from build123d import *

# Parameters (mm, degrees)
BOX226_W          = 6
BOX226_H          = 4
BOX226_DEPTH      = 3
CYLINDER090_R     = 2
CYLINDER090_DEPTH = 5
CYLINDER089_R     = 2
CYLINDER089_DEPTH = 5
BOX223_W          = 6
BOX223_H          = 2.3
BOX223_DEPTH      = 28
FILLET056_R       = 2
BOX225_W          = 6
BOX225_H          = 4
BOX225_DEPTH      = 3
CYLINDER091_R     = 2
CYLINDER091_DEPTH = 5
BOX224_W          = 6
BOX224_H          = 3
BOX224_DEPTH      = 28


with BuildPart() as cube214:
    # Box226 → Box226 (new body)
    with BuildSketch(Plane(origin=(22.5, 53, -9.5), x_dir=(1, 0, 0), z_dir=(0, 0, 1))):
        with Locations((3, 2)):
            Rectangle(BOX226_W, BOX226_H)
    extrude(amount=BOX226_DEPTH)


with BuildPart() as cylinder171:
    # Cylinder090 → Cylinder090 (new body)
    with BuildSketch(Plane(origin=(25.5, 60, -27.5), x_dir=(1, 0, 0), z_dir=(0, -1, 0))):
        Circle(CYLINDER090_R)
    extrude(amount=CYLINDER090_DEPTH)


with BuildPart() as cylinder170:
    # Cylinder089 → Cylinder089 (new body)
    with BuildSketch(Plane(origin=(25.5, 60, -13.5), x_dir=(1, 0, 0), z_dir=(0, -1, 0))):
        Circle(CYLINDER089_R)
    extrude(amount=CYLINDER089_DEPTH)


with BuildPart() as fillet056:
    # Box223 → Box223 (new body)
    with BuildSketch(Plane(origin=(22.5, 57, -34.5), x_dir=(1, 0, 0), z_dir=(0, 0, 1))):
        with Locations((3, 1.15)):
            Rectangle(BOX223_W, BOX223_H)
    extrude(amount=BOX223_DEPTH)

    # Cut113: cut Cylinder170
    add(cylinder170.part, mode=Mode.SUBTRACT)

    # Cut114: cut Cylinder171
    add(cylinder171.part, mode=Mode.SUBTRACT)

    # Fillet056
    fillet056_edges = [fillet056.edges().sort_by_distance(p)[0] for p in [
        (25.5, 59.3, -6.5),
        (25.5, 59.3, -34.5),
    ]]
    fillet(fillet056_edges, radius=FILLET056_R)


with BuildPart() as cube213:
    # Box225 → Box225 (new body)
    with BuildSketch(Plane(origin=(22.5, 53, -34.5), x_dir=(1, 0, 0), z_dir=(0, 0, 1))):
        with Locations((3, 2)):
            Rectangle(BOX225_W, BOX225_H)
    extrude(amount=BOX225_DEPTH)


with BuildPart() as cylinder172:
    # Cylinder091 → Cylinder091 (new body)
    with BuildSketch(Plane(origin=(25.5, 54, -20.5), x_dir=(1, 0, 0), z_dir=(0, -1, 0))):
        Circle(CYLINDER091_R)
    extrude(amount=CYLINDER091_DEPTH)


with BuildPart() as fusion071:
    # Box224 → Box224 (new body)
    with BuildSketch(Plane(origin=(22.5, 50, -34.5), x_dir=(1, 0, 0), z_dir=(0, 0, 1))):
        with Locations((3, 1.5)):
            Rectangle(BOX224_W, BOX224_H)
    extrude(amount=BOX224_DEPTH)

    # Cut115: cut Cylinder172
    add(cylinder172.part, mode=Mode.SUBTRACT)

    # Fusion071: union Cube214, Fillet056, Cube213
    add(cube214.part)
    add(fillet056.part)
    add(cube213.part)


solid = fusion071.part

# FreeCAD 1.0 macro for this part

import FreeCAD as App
import Part
import Sketcher
from FreeCAD import Vector


def edges_at(feature, points):
    """Names of the edges that pass closest to the given points."""
    edges = feature.Shape.Edges
    near = lambda p: min(range(len(edges)), key=lambda i: edges[i].distToShape(Part.Vertex(*p))[0])
    return sorted({f"Edge{near(p) + 1}" for p in points})

doc = App.newDocument("Part")
body = doc.addObject("PartDesign::Body", "Body")

# Sketch on XY plane
sketch1 = body.newObject("Sketcher::SketchObject", "Sketch")
sketch1.AttachmentSupport = (doc.getObject("XY_Plane"), [""])
sketch1.MapMode = "FlatFace"
sketch1.AttachmentOffset = App.Placement(Vector(0, 0, -9.5), App.Rotation())
sketch1.addGeometry([
    Part.LineSegment(Vector(22.5, 57, 0), Vector(22.5, 53, 0)),
    Part.LineSegment(Vector(22.5, 53, 0), Vector(28.5, 53, 0)),
    Part.LineSegment(Vector(28.5, 53, 0), Vector(28.5, 57, 0)),
    Part.LineSegment(Vector(28.5, 57, 0), Vector(22.5, 57, 0)),
], False)
sketch1.addConstraint([
    Sketcher.Constraint("Coincident", 0, 2, 1, 1),
    Sketcher.Constraint("Coincident", 1, 2, 2, 1),
    Sketcher.Constraint("Coincident", 2, 2, 3, 1),
    Sketcher.Constraint("Coincident", 3, 2, 0, 1),
    Sketcher.Constraint("Vertical", 0),
    Sketcher.Constraint("Horizontal", 1),
    Sketcher.Constraint("Vertical", 2),
    Sketcher.Constraint("Horizontal", 3),
    Sketcher.Constraint("DistanceX", 1, 1, 1, 2, 6.0),
    Sketcher.Constraint("DistanceY", 0, 2, 0, 1, 4.0),
    Sketcher.Constraint("DistanceY", -1, 1, 0, 2, 53.0),
    Sketcher.Constraint("DistanceX", -1, 1, 0, 2, 22.5),
])
pad1 = body.newObject("PartDesign::Pad", "Pad")
pad1.Profile = sketch1
pad1.Length = 3
body2 = doc.addObject("PartDesign::Body", "Body001")

# Sketch on XZ plane
sketch2 = body2.newObject("Sketcher::SketchObject", "Sketch001")
sketch2.AttachmentSupport = (doc.getObject("XZ_Plane001"), [""])
sketch2.MapMode = "FlatFace"
sketch2.AttachmentOffset = App.Placement(Vector(0, 0, -60), App.Rotation())
sketch2.addGeometry(Part.Circle(Vector(25.5, -27.5, 0), Vector(0, 0, 1), 2), False)
sketch2.addConstraint([
    Sketcher.Constraint("Diameter", 0, 4.0),
    Sketcher.Constraint("DistanceX", -1, 1, 0, 3, 25.5),
    Sketcher.Constraint("DistanceY", 0, 3, -1, 1, 27.5),
])
pad2 = body2.newObject("PartDesign::Pad", "Pad001")
pad2.Profile = sketch2
pad2.Length = 5
body3 = doc.addObject("PartDesign::Body", "Body002")

# Sketch on XZ plane
sketch3 = body3.newObject("Sketcher::SketchObject", "Sketch002")
sketch3.AttachmentSupport = (doc.getObject("XZ_Plane002"), [""])
sketch3.MapMode = "FlatFace"
sketch3.AttachmentOffset = App.Placement(Vector(0, 0, -60), App.Rotation())
sketch3.addGeometry(Part.Circle(Vector(25.5, -13.5, 0), Vector(0, 0, 1), 2), False)
sketch3.addConstraint([
    Sketcher.Constraint("Diameter", 0, 4.0),
    Sketcher.Constraint("DistanceX", -1, 1, 0, 3, 25.5),
    Sketcher.Constraint("DistanceY", 0, 3, -1, 1, 13.5),
])
pad3 = body3.newObject("PartDesign::Pad", "Pad002")
pad3.Profile = sketch3
pad3.Length = 5
body4 = doc.addObject("PartDesign::Body", "Body003")

# Sketch on XY plane
sketch4 = body4.newObject("Sketcher::SketchObject", "Sketch003")
sketch4.AttachmentSupport = (doc.getObject("XY_Plane003"), [""])
sketch4.MapMode = "FlatFace"
sketch4.AttachmentOffset = App.Placement(Vector(0, 0, -34.5), App.Rotation())
sketch4.addGeometry([
    Part.LineSegment(Vector(22.5, 59.3, 0), Vector(22.5, 57, 0)),
    Part.LineSegment(Vector(22.5, 57, 0), Vector(28.5, 57, 0)),
    Part.LineSegment(Vector(28.5, 57, 0), Vector(28.5, 59.3, 0)),
    Part.LineSegment(Vector(28.5, 59.3, 0), Vector(22.5, 59.3, 0)),
], False)
sketch4.addConstraint([
    Sketcher.Constraint("Coincident", 0, 2, 1, 1),
    Sketcher.Constraint("Coincident", 1, 2, 2, 1),
    Sketcher.Constraint("Coincident", 2, 2, 3, 1),
    Sketcher.Constraint("Coincident", 3, 2, 0, 1),
    Sketcher.Constraint("Vertical", 0),
    Sketcher.Constraint("Horizontal", 1),
    Sketcher.Constraint("Vertical", 2),
    Sketcher.Constraint("Horizontal", 3),
    Sketcher.Constraint("DistanceX", 1, 1, 1, 2, 6.0),
    Sketcher.Constraint("DistanceY", 0, 2, 0, 1, 2.3),
    Sketcher.Constraint("DistanceY", -1, 1, 0, 2, 57.0),
    Sketcher.Constraint("DistanceX", -1, 1, 0, 2, 22.5),
])
pad4 = body4.newObject("PartDesign::Pad", "Pad003")
pad4.Profile = sketch4
pad4.Length = 28
doc.recompute()

boolean = body4.newObject("PartDesign::Boolean", "Boolean")
boolean.Type = "Cut"
boolean.addObjects([body3])
doc.recompute()

boolean2 = body4.newObject("PartDesign::Boolean", "Boolean001")
boolean2.Type = "Cut"
boolean2.addObjects([body2])
doc.recompute()

fillet = body4.newObject("PartDesign::Fillet", "Fillet")
fillet.Base = (boolean2, edges_at(boolean2, [(25.5, 59.3, -6.5), (25.5, 59.3, -34.5)]))
fillet.Radius = 2
body5 = doc.addObject("PartDesign::Body", "Body004")

# Sketch on XY plane
sketch5 = body5.newObject("Sketcher::SketchObject", "Sketch004")
sketch5.AttachmentSupport = (doc.getObject("XY_Plane004"), [""])
sketch5.MapMode = "FlatFace"
sketch5.AttachmentOffset = App.Placement(Vector(0, 0, -34.5), App.Rotation())
sketch5.addGeometry([
    Part.LineSegment(Vector(22.5, 57, 0), Vector(22.5, 53, 0)),
    Part.LineSegment(Vector(22.5, 53, 0), Vector(28.5, 53, 0)),
    Part.LineSegment(Vector(28.5, 53, 0), Vector(28.5, 57, 0)),
    Part.LineSegment(Vector(28.5, 57, 0), Vector(22.5, 57, 0)),
], False)
sketch5.addConstraint([
    Sketcher.Constraint("Coincident", 0, 2, 1, 1),
    Sketcher.Constraint("Coincident", 1, 2, 2, 1),
    Sketcher.Constraint("Coincident", 2, 2, 3, 1),
    Sketcher.Constraint("Coincident", 3, 2, 0, 1),
    Sketcher.Constraint("Vertical", 0),
    Sketcher.Constraint("Horizontal", 1),
    Sketcher.Constraint("Vertical", 2),
    Sketcher.Constraint("Horizontal", 3),
    Sketcher.Constraint("DistanceX", 1, 1, 1, 2, 6.0),
    Sketcher.Constraint("DistanceY", 0, 2, 0, 1, 4.0),
    Sketcher.Constraint("DistanceY", -1, 1, 0, 2, 53.0),
    Sketcher.Constraint("DistanceX", -1, 1, 0, 2, 22.5),
])
pad5 = body5.newObject("PartDesign::Pad", "Pad004")
pad5.Profile = sketch5
pad5.Length = 3
body6 = doc.addObject("PartDesign::Body", "Body005")

# Sketch on XZ plane
sketch6 = body6.newObject("Sketcher::SketchObject", "Sketch005")
sketch6.AttachmentSupport = (doc.getObject("XZ_Plane005"), [""])
sketch6.MapMode = "FlatFace"
sketch6.AttachmentOffset = App.Placement(Vector(0, 0, -54), App.Rotation())
sketch6.addGeometry(Part.Circle(Vector(25.5, -20.5, 0), Vector(0, 0, 1), 2), False)
sketch6.addConstraint([
    Sketcher.Constraint("Diameter", 0, 4.0),
    Sketcher.Constraint("DistanceX", -1, 1, 0, 3, 25.5),
    Sketcher.Constraint("DistanceY", 0, 3, -1, 1, 20.5),
])
pad6 = body6.newObject("PartDesign::Pad", "Pad005")
pad6.Profile = sketch6
pad6.Length = 5
body7 = doc.addObject("PartDesign::Body", "Body006")

# Sketch on XY plane
sketch7 = body7.newObject("Sketcher::SketchObject", "Sketch006")
sketch7.AttachmentSupport = (doc.getObject("XY_Plane006"), [""])
sketch7.MapMode = "FlatFace"
sketch7.AttachmentOffset = App.Placement(Vector(0, 0, -34.5), App.Rotation())
sketch7.addGeometry([
    Part.LineSegment(Vector(22.5, 53, 0), Vector(22.5, 50, 0)),
    Part.LineSegment(Vector(22.5, 50, 0), Vector(28.5, 50, 0)),
    Part.LineSegment(Vector(28.5, 50, 0), Vector(28.5, 53, 0)),
    Part.LineSegment(Vector(28.5, 53, 0), Vector(22.5, 53, 0)),
], False)
sketch7.addConstraint([
    Sketcher.Constraint("Coincident", 0, 2, 1, 1),
    Sketcher.Constraint("Coincident", 1, 2, 2, 1),
    Sketcher.Constraint("Coincident", 2, 2, 3, 1),
    Sketcher.Constraint("Coincident", 3, 2, 0, 1),
    Sketcher.Constraint("Vertical", 0),
    Sketcher.Constraint("Horizontal", 1),
    Sketcher.Constraint("Vertical", 2),
    Sketcher.Constraint("Horizontal", 3),
    Sketcher.Constraint("DistanceX", 1, 1, 1, 2, 6.0),
    Sketcher.Constraint("DistanceY", 0, 2, 0, 1, 3.0),
    Sketcher.Constraint("DistanceY", -1, 1, 0, 2, 50.0),
    Sketcher.Constraint("DistanceX", -1, 1, 0, 2, 22.5),
])
pad7 = body7.newObject("PartDesign::Pad", "Pad006")
pad7.Profile = sketch7
pad7.Length = 28
doc.recompute()

boolean3 = body7.newObject("PartDesign::Boolean", "Boolean002")
boolean3.Type = "Cut"
boolean3.addObjects([body6])
doc.recompute()

boolean4 = body7.newObject("PartDesign::Boolean", "Boolean003")
boolean4.Type = "Fuse"
boolean4.addObjects([body])
doc.recompute()

boolean5 = body7.newObject("PartDesign::Boolean", "Boolean004")
boolean5.Type = "Fuse"
boolean5.addObjects([body4])
doc.recompute()

boolean6 = body7.newObject("PartDesign::Boolean", "Boolean005")
boolean6.Type = "Fuse"
boolean6.addObjects([body5])

doc.recompute()
